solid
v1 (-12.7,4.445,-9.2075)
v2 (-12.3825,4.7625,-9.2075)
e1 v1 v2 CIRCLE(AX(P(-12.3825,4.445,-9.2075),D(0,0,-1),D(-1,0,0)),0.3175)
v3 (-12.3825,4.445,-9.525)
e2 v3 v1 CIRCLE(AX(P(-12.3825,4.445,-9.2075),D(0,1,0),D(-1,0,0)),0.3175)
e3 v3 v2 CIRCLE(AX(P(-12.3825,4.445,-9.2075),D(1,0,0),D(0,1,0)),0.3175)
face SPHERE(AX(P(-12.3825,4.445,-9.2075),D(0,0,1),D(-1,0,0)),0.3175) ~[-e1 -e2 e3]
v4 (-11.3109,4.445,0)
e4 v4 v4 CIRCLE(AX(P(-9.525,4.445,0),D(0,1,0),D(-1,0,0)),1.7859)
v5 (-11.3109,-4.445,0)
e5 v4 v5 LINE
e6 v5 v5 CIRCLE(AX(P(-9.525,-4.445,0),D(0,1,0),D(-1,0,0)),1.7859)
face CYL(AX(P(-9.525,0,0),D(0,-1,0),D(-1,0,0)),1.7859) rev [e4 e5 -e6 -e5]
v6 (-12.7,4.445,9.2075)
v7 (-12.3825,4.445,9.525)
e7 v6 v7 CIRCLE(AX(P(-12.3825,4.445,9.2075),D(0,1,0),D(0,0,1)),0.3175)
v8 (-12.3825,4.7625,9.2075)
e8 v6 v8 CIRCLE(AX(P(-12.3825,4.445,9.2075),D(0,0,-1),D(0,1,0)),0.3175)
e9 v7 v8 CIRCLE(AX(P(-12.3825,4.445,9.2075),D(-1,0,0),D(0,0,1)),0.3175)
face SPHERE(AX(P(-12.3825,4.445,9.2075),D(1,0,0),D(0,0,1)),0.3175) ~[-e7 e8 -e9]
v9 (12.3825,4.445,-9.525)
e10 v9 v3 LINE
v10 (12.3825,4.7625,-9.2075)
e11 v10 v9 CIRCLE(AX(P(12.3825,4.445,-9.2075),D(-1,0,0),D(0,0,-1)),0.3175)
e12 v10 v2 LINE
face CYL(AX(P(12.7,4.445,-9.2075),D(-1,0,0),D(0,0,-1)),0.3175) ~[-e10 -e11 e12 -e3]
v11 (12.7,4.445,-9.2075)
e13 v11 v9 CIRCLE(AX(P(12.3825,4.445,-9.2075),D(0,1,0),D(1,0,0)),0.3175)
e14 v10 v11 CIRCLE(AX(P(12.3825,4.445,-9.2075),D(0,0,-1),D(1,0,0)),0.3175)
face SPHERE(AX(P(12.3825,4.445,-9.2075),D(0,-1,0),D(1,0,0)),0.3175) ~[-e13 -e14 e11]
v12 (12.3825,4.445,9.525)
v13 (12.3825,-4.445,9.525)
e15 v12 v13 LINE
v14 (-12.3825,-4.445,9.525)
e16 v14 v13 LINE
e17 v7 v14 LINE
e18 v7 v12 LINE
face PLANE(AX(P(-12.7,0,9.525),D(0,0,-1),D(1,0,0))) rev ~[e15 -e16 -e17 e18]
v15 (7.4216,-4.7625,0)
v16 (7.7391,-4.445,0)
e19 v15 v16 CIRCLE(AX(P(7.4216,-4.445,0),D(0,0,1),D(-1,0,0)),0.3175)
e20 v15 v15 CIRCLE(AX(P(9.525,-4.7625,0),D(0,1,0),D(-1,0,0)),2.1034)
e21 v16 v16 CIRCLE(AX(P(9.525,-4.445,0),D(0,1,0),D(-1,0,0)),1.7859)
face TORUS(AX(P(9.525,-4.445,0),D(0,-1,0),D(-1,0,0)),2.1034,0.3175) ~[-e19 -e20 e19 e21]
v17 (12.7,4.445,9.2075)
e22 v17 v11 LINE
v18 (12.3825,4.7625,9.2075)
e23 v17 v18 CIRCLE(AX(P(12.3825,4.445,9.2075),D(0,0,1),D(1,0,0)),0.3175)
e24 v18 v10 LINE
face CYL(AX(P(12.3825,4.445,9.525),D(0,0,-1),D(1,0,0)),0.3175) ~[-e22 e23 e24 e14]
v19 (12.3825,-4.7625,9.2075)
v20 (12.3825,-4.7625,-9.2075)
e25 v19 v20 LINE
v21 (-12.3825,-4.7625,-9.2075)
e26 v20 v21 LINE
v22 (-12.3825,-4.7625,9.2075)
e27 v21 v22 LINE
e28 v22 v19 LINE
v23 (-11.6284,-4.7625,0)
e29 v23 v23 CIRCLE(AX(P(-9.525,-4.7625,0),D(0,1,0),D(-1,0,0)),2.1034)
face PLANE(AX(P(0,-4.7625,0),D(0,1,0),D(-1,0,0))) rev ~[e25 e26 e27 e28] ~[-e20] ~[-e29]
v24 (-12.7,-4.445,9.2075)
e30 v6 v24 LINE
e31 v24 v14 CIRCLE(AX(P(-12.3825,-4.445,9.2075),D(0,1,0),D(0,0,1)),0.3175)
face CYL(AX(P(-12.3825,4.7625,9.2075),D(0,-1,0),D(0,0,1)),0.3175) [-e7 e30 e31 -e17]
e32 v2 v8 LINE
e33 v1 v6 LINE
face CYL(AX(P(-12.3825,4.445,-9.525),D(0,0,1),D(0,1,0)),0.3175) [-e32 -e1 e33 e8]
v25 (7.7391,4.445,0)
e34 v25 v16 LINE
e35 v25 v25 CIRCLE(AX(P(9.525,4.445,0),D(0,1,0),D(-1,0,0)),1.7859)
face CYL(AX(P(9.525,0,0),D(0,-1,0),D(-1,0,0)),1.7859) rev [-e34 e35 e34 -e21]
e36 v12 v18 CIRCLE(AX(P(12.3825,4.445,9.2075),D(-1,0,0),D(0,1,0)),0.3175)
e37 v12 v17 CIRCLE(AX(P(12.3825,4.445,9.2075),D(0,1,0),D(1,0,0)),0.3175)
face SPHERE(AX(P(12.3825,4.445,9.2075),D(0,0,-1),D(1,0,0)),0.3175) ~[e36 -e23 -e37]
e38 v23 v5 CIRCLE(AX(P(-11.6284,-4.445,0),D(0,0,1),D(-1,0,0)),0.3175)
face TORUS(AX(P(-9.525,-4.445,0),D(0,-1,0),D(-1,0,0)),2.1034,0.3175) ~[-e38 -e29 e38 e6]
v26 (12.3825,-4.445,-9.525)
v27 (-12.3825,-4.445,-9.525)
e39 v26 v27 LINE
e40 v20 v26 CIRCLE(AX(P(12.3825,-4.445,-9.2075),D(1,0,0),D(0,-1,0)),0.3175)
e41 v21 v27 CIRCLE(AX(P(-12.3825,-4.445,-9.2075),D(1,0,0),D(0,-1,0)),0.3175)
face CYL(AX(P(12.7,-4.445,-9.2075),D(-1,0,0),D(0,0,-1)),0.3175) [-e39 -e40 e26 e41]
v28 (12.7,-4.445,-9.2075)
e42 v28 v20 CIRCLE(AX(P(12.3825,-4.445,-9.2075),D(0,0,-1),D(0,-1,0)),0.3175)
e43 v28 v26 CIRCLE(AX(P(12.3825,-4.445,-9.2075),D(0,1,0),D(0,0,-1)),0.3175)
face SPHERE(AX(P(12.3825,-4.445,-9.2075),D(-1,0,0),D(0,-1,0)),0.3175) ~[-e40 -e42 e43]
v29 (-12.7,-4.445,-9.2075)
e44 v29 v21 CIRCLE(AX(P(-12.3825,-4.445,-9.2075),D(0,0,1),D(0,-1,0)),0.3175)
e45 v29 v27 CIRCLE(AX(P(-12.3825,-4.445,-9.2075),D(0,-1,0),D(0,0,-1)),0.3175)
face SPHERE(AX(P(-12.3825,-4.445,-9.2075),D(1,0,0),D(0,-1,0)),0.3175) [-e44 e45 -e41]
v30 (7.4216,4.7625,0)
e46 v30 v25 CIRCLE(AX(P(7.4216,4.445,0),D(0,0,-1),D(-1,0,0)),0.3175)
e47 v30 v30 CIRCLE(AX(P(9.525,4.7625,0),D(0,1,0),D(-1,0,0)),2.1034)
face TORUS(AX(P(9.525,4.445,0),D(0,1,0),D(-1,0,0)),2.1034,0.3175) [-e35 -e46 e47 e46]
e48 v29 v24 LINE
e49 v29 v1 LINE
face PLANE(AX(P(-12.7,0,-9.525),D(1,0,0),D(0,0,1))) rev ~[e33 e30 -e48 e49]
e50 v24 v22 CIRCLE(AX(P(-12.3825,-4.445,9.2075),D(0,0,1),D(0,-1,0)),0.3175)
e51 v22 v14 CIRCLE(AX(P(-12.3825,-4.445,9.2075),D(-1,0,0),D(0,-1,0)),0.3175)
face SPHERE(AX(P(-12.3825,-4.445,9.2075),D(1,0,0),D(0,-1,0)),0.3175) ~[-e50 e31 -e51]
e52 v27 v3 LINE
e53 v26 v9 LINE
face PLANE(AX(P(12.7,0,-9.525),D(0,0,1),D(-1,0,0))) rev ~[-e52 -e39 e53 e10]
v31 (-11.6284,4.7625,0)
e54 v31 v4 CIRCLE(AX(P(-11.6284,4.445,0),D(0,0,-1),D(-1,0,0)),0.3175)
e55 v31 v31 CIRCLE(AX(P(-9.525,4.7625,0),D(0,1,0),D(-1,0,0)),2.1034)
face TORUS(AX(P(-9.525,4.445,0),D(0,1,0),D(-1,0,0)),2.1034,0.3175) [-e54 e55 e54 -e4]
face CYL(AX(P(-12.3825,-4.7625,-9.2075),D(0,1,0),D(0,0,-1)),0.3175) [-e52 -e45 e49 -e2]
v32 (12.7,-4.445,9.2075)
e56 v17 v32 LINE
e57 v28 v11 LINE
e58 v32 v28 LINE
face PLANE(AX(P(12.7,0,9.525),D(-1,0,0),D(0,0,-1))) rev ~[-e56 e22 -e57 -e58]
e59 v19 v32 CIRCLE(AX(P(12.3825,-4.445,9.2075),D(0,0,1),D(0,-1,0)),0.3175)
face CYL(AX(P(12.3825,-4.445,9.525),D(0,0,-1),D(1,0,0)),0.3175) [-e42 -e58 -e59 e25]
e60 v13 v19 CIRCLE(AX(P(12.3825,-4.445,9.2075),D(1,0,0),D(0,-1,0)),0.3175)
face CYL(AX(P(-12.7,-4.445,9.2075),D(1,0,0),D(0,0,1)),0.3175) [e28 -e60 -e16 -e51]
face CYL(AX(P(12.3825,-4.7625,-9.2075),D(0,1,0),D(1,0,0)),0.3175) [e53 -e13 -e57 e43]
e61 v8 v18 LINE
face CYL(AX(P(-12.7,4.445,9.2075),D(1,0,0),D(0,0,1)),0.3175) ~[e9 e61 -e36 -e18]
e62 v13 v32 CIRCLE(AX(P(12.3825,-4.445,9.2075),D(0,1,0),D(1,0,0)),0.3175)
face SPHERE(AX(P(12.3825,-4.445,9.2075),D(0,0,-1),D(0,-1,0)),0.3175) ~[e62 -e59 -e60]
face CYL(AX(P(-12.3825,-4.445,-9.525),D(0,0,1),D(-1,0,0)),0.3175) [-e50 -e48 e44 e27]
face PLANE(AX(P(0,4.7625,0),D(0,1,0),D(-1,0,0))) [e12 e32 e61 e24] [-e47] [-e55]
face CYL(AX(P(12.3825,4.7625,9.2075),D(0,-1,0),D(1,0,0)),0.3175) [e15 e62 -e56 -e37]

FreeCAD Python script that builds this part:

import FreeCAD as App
import Part
import Sketcher
from FreeCAD import Vector
Q = App.Units.Quantity

doc = App.newDocument("Part")
body = doc.addObject("PartDesign::Body", "Body")

# Sketch on XZ plane
sketch1 = doc.addObject("Sketcher::SketchObject", "Sketch")
body.addObject(sketch1)
sketch1.AttachmentSupport = (doc.XZ_Plane, [""])
sketch1.MapMode = "FlatFace"
sketch1.addGeometry([
    Part.LineSegment(Vector(12.7, 9.5, 0), Vector(12.7, -9.5, 0)),  # 0
    Part.LineSegment(Vector(12.7, -9.5, 0), Vector(-12.7, -9.5, 0)),  # 1
    Part.LineSegment(Vector(-12.7, -9.5, 0), Vector(-12.7, 9.5, 0)),  # 2
    Part.LineSegment(Vector(-12.7, 9.5, 0), Vector(12.7, 9.5, 0)),  # 3
    Part.Circle(Vector(9.5, 0, 0), Vector(0, 0, 1), 1.8),  # 4
    Part.Circle(Vector(-9.5, 0, 0), Vector(0, 0, 1), 1.8),  # 5
], False)
sketch1.addConstraint([
    Sketcher.Constraint("Coincident", 0, 2, 1, 1),
    Sketcher.Constraint("Coincident", 1, 2, 2, 1),
    Sketcher.Constraint("Coincident", 2, 2, 3, 1),
    Sketcher.Constraint("Coincident", 3, 2, 0, 1),
    Sketcher.Constraint("Vertical", 0),
    Sketcher.Constraint("Horizontal", 1),
    Sketcher.Constraint("Vertical", 2),
    Sketcher.Constraint("Horizontal", 3),
    Sketcher.Constraint("Equal", 4, 5),
    Sketcher.Constraint("Symmetric", 4, 3, 5, 3, -1, 1),
    Sketcher.Constraint("Symmetric", 0, 2, 2, 2, -1, 1),
    Sketcher.Constraint("PointOnObject", 4, 3, -1),
    Sketcher.Constraint("DistanceX", 1, 2, 1, 1, Q("1 in")),
    Sketcher.Constraint("Diameter", 4, Q("0.140622 in")),
    Sketcher.Constraint("DistanceY", 0, 2, 0, 1, Q("0.75 in")),
    Sketcher.Constraint("DistanceX", 5, 3, 4, 3, Q("0.75 in")),
])
pad1 = doc.addObject("PartDesign::Pad", "Pad")
body.addObject(pad1)
pad1.Profile = sketch1
pad1.Length = Q("0.375 in")
pad1.Midplane = True
doc.recompute()

fillet = doc.addObject("PartDesign::Fillet", "Fillet")
body.addObject(fillet)
fillet.Base = (pad1, ["Edge1"])
fillet.UseAllEdges = True
fillet.Radius = Q("0.0125 in")

doc.recompute()
